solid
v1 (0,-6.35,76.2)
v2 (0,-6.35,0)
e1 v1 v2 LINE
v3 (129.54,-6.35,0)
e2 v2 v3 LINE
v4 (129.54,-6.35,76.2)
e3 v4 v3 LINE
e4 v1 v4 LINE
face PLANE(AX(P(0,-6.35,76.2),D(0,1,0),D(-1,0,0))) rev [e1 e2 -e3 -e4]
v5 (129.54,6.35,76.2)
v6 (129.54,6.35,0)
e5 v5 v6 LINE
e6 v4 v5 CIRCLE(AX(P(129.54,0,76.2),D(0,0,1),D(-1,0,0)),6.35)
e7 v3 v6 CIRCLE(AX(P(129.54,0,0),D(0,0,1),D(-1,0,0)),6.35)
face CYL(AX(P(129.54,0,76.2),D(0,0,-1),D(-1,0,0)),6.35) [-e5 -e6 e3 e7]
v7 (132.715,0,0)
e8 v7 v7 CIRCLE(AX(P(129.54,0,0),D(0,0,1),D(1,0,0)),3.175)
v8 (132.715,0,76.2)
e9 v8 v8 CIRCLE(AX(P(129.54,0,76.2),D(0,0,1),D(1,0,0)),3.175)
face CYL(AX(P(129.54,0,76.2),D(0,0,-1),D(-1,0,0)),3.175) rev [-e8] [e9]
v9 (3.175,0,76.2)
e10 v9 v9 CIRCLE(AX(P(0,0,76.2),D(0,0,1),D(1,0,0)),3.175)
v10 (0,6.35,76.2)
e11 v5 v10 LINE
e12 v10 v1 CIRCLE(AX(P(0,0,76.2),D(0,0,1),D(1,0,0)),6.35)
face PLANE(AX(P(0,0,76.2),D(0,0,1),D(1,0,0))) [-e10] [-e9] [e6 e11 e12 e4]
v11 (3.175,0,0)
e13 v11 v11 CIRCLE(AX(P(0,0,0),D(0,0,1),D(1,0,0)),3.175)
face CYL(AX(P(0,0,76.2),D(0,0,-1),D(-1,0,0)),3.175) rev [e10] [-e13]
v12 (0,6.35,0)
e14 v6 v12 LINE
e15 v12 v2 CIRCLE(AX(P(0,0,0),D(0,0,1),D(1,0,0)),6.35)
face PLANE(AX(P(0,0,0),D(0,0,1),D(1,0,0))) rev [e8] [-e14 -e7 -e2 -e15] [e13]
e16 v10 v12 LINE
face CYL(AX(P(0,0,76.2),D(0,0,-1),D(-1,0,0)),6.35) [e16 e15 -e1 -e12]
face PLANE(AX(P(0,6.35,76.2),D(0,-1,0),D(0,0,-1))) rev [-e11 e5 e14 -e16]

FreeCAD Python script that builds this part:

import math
import FreeCAD as App
import Part
import Sketcher
from FreeCAD import Vector
Q = App.Units.Quantity

doc = App.newDocument("Part")
params = doc.addObject("Spreadsheet::Sheet", "Params")
for row, (alias, value) in enumerate([
    ("sketch1_diameter", "0.25 in"),
    ("sketch1_radius", "0.25 in"),
    ("sketch1_width", "5.1 in"),
    ("pad1_length", "3 in"),
], start=1):
    params.set(f"A{row}", alias)
    params.set(f"B{row}", "=" + value)
    params.setAlias(f"B{row}", alias)

body = doc.addObject("PartDesign::Body", "Body")

sketch1 = body.newObject("Sketcher::SketchObject", "Sketch")
sketch1.AttachmentSupport = (doc.getObject("XY_Plane"), [""])
sketch1.MapMode = "FlatFace"
sketch1.addGeometry(Part.LineSegment(Vector(129.5, 6.3, 0), Vector(0, 6.3, 0)), False)
sketch1.addGeometry(Part.ArcOfCircle(Part.Circle(Vector(0, 0, 0), Vector(0, 0, 1), 6.3), math.radians(90), math.radians(270)), False)
sketch1.addGeometry(Part.LineSegment(Vector(0, -6.3, 0), Vector(129.5, -6.3, 0)), False)
sketch1.addGeometry(Part.ArcOfCircle(Part.Circle(Vector(129.5, 0, 0), Vector(0, 0, 1), 6.3), math.radians(-90), math.radians(90)), False)
sketch1.addGeometry(Part.Circle(Vector(129.5, 0, 0), Vector(0, 0, 1), 3.2), False)
sketch1.addGeometry(Part.Circle(Vector(0, 0, 0), Vector(0, 0, 1), 3.2), False)
sketch1.addConstraint(Sketcher.Constraint("Tangent", 0, 2, 1, 1))
sketch1.addConstraint(Sketcher.Constraint("Tangent", 1, 2, 2, 1))
sketch1.addConstraint(Sketcher.Constraint("Tangent", 2, 2, 3, 1))
sketch1.addConstraint(Sketcher.Constraint("Tangent", 3, 2, 0, 1))
sketch1.addConstraint(Sketcher.Constraint("Horizontal", 0))
sketch1.addConstraint(Sketcher.Constraint("Horizontal", 2))
sketch1.addConstraint(Sketcher.Constraint("Coincident", 1, 3, -1, 1))
sketch1.addConstraint(Sketcher.Constraint("Coincident", 5, 3, -1, 1))
sketch1.addConstraint(Sketcher.Constraint("Coincident", 4, 3, 3, 3))
sketch1.addConstraint(Sketcher.Constraint("Equal", 4, 5))
sketch1.addConstraint(Sketcher.Constraint("Diameter", 4, Q("0.25 in")))
sketch1.addConstraint(Sketcher.Constraint("Radius", 1, Q("0.25 in")))
sketch1.addConstraint(Sketcher.Constraint("DistanceX", 0, 2, 0, 1, Q("5.1 in")))
sketch1.setExpression("Constraints[10]", "Params.sketch1_diameter")
sketch1.setExpression("Constraints[11]", "Params.sketch1_radius")
sketch1.setExpression("Constraints[12]", "Params.sketch1_width")
pad1 = body.newObject("PartDesign::Pad", "Pad")
pad1.Profile = sketch1
pad1.setExpression("Length", "Params.pad1_length")

doc.recompute()
